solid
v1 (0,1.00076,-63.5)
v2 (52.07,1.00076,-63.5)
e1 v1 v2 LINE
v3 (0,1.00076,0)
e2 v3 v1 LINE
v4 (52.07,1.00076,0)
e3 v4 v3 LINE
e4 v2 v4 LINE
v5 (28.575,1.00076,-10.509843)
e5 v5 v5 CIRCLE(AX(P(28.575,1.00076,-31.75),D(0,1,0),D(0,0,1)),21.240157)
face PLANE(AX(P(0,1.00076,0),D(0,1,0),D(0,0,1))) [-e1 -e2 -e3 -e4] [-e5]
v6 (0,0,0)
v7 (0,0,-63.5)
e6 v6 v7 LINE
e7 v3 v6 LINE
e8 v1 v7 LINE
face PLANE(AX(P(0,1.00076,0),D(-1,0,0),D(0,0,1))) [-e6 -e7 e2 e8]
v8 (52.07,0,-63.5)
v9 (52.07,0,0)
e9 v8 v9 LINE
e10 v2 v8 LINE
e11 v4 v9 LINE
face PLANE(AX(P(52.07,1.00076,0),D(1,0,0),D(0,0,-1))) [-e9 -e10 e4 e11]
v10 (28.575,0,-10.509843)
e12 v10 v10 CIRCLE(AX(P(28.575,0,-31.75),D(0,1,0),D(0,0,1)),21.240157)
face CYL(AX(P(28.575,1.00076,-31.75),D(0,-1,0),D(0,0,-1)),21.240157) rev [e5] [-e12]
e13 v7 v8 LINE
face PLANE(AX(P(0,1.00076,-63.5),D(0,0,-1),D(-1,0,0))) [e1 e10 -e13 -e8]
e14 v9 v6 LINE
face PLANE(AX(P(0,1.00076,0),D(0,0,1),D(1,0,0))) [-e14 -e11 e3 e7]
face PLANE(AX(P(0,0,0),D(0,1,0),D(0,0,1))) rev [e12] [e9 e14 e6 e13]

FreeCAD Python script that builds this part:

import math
import FreeCAD as App
import Part
import Sketcher

V = App.Vector
Q = App.Units.Quantity


def add_polygon(sketch, points):
    """Adds a closed chain of lines whose ends are joined by coincident constraints."""
    first, n = sketch.GeometryCount, len(points)
    for a, b in zip(points, points[1:] + points[:1]):
        sketch.addGeometry(Part.LineSegment(App.Vector(*a, 0), App.Vector(*b, 0)), False)
    for i in range(n):
        sketch.addConstraint(Sketcher.Constraint("Coincident", first + i, 2, first + (i + 1) % n, 1))

doc = App.newDocument("Part")
body = doc.addObject("PartDesign::Body", "Body")

# Sketch on XZ plane
sketch1 = doc.addObject("Sketcher::SketchObject", "Sketch")
body.addObject(sketch1)
sketch1.AttachmentSupport = (doc.XZ_Plane, [""])
sketch1.MapMode = "FlatFace"
add_polygon(sketch1, [(0, -63.5), (0, 0), (52.1, 0), (52.1, -63.5)])  # lines 0-3
sketch1.addGeometry(Part.ArcOfCircle(Part.Circle(V(28.6, -31.8, 0), V(0, 0, 1), 21.2), math.radians(-90), math.radians(-78.27)), False)  # 4
sketch1.addGeometry(Part.ArcOfCircle(Part.Circle(V(28.6, -31.8, 0), V(0, 0, 1), 21.2), math.radians(-78), math.radians(0)), False)  # 5
sketch1.addGeometry(Part.ArcOfCircle(Part.Circle(V(28.6, -31.8, 0), V(0, 0, 1), 21.2), math.radians(0), math.radians(78)), False)  # 6
sketch1.addGeometry(Part.ArcOfCircle(Part.Circle(V(28.6, -31.7, 0), V(0, 0, 1), 21.2), math.radians(78.27), math.radians(90)), False)  # 7
sketch1.addGeometry(Part.ArcOfCircle(Part.Circle(V(28.6, -31.7, 0), V(0, 0, 1), 21.2), math.radians(90), math.radians(101.73)), False)  # 8
sketch1.addGeometry(Part.ArcOfCircle(Part.Circle(V(28.6, -31.8, 0), V(0, 0, 1), 21.2), math.radians(102), math.radians(258)), False)  # 9
sketch1.addGeometry(Part.ArcOfCircle(Part.Circle(V(28.6, -31.8, 0), V(0, 0, 1), 21.2), math.radians(-101.73), math.radians(-90)), False)  # 10
sketch1.addConstraint([
    Sketcher.Constraint("Tangent", 4, 2, 5, 1),
    Sketcher.Constraint("Tangent", 5, 2, 6, 1),
    Sketcher.Constraint("Tangent", 6, 2, 7, 1),
    Sketcher.Constraint("Tangent", 7, 2, 8, 1),
    Sketcher.Constraint("Tangent", 8, 2, 9, 1),
    Sketcher.Constraint("Tangent", 9, 2, 10, 1),
    Sketcher.Constraint("Tangent", 10, 2, 4, 1),
    Sketcher.Constraint("Vertical", 0),
    Sketcher.Constraint("Horizontal", 1),
    Sketcher.Constraint("Vertical", 2),
    Sketcher.Constraint("Horizontal", 3),
    Sketcher.Constraint("Coincident", 0, 2, -1, 1),
    Sketcher.Constraint("Coincident", 6, 3, 4, 3),
    Sketcher.Constraint("Coincident", 8, 3, 4, 3),
    Sketcher.Constraint("Horizontal", 10, 3, 5, 2),
    Sketcher.Constraint("Horizontal", 6, 2, 8, 2),
    Sketcher.Constraint("Horizontal", 4, 2, 9, 2),
    Sketcher.Constraint("Vertical", 4, 2, 6, 2),
    Sketcher.Constraint("Vertical", 10, 3, 7, 2),
    Sketcher.Constraint("Vertical", 7, 2, 10, 2),
    Sketcher.Constraint("DistanceY", 0, 1, 0, 2, Q("2.5 in")),
    Sketcher.Constraint("DistanceX", 1, 1, 1, 2, Q("2.05 in")),
    Sketcher.Constraint("DistanceY", 4, 3, -1, 1, Q("1.25 in")),
    Sketcher.Constraint("DistanceX", 4, 3, 4, 2, Q("0.17 in")),
    Sketcher.Constraint("DistanceX", -1, 1, 4, 3, Q("1.125 in")),
    Sketcher.Constraint("Radius", 4, Q("21.240157 mm")),
])
pad1 = doc.addObject("PartDesign::Pad", "Pad")
body.addObject(pad1)
pad1.Profile = sketch1
pad1.Length = Q("0.0394 in")
pad1.Reversed = True

doc.recompute()
